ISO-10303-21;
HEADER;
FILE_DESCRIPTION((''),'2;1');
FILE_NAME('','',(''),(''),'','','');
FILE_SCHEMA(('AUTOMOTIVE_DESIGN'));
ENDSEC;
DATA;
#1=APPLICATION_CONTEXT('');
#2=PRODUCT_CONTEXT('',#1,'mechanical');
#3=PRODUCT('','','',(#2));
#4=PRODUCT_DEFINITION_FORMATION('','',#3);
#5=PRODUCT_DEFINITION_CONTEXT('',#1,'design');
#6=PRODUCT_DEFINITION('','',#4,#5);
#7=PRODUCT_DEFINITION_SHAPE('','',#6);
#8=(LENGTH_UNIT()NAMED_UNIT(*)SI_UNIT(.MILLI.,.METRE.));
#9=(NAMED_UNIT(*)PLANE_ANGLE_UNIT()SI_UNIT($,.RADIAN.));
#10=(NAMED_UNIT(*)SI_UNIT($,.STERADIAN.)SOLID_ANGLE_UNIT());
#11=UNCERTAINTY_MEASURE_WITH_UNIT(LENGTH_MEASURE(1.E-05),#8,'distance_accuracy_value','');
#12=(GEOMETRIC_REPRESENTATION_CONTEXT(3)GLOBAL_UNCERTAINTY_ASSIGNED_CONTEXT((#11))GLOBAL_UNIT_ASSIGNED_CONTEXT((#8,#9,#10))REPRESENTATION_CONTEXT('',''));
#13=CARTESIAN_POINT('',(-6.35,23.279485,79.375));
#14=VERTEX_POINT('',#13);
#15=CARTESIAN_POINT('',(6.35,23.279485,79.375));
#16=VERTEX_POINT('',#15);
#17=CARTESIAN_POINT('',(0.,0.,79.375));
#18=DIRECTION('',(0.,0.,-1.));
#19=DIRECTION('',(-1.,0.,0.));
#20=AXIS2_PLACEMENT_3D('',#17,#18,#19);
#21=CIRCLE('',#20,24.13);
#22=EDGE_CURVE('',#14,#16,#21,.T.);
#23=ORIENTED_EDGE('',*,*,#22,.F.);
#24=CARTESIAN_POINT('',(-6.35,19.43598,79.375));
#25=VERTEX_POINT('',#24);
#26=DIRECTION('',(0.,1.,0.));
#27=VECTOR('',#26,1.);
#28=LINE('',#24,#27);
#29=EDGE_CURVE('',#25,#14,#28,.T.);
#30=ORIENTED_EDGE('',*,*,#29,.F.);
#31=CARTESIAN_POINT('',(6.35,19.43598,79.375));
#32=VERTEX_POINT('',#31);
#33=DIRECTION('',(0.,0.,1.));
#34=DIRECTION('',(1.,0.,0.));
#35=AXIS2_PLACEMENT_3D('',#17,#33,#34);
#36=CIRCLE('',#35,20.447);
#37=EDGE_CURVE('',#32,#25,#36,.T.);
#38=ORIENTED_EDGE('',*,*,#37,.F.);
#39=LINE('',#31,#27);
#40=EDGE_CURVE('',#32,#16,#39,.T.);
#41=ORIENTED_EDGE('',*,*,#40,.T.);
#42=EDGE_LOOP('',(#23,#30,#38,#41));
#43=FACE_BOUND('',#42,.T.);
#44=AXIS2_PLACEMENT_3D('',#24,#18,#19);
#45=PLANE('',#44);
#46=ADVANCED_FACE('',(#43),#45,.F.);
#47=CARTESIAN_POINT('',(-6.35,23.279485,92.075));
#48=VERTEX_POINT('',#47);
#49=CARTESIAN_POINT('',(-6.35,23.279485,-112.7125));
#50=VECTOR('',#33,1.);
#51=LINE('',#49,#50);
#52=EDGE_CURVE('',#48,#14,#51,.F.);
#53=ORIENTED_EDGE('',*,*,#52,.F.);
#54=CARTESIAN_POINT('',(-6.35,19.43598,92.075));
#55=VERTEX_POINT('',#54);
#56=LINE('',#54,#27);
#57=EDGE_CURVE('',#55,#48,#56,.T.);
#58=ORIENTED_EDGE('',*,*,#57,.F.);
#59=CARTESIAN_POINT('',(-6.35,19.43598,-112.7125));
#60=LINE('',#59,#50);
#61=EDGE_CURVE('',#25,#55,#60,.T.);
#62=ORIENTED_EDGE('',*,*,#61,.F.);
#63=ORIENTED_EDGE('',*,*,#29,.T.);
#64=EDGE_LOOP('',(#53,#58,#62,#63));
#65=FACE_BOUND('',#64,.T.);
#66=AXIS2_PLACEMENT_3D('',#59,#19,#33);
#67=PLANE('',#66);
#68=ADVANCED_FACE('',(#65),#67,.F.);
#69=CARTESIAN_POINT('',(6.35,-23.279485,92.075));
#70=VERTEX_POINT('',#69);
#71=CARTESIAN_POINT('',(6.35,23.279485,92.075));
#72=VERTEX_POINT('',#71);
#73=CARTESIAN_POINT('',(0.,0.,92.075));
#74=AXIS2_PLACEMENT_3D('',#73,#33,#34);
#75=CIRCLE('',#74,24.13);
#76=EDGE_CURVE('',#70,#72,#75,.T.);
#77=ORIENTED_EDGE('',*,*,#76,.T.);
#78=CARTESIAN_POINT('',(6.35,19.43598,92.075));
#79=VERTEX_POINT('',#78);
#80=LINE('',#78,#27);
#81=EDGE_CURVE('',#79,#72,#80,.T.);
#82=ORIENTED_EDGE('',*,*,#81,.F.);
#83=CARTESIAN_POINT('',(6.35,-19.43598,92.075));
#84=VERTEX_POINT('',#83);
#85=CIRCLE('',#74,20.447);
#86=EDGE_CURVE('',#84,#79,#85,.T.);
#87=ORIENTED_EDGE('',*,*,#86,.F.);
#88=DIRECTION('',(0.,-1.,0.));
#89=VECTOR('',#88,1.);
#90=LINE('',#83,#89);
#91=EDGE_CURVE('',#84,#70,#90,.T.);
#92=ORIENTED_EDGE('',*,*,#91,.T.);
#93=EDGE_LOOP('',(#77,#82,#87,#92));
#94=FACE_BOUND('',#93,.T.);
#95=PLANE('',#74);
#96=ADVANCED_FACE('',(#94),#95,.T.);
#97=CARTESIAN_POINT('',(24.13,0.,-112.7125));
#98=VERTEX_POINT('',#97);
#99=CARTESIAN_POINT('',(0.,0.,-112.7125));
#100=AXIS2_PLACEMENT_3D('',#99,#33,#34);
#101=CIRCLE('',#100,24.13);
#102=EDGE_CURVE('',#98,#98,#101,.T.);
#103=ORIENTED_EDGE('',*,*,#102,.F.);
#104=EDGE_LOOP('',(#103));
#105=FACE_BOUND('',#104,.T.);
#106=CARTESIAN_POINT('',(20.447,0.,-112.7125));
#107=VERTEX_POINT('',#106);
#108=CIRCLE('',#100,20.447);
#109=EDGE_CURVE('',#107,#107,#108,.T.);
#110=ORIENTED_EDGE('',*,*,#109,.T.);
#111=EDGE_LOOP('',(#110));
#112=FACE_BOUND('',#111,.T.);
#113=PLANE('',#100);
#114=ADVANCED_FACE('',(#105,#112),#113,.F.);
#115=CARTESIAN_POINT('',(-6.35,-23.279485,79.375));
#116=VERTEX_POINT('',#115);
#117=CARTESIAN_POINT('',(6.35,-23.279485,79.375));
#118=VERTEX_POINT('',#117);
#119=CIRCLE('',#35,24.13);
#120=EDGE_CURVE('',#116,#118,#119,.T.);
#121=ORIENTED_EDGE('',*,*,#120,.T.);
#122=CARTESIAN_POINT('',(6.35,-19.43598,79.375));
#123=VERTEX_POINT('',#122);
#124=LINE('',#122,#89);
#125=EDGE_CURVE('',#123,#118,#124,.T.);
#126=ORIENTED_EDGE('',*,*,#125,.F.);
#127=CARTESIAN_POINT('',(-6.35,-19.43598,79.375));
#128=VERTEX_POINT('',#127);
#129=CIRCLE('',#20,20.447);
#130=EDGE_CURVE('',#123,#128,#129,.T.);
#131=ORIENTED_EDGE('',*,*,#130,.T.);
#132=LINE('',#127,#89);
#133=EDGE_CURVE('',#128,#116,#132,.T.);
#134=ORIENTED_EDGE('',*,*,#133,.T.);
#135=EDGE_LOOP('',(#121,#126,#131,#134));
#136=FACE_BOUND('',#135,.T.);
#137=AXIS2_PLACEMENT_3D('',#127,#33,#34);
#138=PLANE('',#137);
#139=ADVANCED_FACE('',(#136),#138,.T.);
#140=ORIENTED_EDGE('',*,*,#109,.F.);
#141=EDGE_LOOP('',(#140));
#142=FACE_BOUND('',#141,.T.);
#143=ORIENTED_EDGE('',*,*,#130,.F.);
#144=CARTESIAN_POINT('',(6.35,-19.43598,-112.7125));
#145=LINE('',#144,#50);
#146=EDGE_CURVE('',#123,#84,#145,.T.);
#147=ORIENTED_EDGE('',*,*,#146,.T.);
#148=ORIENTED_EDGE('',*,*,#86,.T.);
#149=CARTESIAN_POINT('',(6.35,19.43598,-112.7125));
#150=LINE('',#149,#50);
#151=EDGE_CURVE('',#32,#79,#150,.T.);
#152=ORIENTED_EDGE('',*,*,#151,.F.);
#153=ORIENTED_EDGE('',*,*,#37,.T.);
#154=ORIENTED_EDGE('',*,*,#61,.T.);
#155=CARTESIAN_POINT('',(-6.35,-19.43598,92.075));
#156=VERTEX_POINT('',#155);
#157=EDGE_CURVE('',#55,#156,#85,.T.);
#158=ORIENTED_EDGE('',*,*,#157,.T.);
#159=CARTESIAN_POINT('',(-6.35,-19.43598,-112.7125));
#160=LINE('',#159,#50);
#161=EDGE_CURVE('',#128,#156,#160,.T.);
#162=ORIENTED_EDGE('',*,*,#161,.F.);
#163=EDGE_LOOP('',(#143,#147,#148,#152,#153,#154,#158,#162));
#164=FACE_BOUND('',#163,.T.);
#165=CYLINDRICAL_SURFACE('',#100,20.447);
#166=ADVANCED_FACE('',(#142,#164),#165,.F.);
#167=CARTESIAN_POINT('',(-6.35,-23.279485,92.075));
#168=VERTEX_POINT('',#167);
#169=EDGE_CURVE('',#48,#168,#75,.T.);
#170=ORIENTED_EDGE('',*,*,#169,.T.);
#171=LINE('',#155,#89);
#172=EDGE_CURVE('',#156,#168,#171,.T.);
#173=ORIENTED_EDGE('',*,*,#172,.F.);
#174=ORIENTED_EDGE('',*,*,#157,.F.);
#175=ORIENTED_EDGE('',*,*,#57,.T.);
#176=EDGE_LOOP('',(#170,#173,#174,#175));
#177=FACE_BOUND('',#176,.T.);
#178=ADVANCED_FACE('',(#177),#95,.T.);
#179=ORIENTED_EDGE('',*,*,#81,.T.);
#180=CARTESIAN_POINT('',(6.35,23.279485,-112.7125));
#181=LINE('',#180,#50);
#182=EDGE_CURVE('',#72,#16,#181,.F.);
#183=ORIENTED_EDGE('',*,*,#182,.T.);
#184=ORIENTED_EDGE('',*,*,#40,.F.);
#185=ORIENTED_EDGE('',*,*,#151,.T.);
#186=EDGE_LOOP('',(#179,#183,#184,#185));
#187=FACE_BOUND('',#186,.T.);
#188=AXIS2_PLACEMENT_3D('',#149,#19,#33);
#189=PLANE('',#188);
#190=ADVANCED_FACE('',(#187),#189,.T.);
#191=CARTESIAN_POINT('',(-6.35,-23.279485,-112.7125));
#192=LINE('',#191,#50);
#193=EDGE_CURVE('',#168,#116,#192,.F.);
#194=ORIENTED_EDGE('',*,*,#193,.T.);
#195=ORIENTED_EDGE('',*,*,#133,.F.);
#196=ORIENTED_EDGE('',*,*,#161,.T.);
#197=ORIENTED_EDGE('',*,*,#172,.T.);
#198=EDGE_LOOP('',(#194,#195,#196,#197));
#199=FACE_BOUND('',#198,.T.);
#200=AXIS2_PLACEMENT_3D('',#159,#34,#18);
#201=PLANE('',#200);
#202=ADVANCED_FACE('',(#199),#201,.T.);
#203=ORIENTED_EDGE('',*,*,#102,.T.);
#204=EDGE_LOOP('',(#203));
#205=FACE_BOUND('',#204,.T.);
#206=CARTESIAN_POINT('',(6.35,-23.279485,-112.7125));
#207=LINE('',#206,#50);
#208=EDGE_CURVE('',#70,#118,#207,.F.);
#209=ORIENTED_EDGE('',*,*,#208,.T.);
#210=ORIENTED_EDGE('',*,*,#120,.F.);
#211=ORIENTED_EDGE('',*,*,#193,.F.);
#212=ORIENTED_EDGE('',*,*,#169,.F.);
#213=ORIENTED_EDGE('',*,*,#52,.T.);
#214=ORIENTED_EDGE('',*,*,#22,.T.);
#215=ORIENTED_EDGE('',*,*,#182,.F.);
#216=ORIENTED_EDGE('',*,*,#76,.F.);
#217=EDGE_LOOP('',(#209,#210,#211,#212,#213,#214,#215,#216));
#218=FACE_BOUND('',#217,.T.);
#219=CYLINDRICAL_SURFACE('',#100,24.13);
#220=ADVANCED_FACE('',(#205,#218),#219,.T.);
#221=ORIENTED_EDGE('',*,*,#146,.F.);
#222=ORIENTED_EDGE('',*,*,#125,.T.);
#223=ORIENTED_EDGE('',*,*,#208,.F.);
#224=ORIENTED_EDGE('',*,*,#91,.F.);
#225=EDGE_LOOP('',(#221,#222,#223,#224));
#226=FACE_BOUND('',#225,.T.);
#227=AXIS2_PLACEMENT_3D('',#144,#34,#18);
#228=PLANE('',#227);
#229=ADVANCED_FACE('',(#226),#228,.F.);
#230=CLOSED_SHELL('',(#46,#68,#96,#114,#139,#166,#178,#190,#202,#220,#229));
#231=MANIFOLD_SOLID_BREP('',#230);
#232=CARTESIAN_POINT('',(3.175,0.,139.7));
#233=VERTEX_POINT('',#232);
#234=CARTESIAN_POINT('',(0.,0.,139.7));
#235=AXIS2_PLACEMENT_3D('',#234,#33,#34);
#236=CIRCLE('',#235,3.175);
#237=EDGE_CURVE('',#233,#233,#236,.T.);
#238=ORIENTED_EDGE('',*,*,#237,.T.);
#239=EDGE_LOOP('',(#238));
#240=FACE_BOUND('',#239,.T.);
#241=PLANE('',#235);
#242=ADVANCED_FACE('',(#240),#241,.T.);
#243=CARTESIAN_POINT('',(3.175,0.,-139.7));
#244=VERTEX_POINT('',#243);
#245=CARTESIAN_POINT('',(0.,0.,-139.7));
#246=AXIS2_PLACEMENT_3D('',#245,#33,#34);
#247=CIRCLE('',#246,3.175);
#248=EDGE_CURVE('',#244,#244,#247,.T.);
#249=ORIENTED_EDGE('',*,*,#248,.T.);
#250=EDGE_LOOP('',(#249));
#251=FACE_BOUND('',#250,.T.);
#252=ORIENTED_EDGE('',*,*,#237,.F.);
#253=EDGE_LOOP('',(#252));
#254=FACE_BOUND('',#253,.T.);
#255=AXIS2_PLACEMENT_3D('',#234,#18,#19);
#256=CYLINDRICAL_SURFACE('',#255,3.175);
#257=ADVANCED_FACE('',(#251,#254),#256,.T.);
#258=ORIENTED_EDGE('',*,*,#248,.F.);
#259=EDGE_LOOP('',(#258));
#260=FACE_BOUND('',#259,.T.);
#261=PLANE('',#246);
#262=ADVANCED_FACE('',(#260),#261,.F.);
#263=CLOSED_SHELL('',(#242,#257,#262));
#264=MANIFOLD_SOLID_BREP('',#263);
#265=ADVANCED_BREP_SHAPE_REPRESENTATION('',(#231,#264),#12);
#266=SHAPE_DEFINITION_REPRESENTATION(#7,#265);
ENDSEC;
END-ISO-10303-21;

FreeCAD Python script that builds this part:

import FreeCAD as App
import Part
import Sketcher

V = App.Vector
Q = App.Units.Quantity

doc = App.newDocument("Part")
body = doc.addObject("PartDesign::Body", "Body")

# Sketch on XY plane
sketch1 = body.newObject("Sketcher::SketchObject", "Sketch")
sketch1.AttachmentSupport = (doc.getObject("XY_Plane"), [""])
sketch1.MapMode = "FlatFace"
sketch1.addGeometry(Part.Circle(V(0, 0, 0), V(0, 0, 1), 3.2), False)
sketch1.addConstraint([
    Sketcher.Constraint("Coincident", 0, 3, -1, 1),
    Sketcher.Constraint("Diameter", 0, Q("0.25 in")),
])
pad1 = body.newObject("PartDesign::Pad", "Pad")
pad1.Profile = sketch1
pad1.Length = Q("11 in")
pad1.Midplane = True
body2 = doc.addObject("PartDesign::Body", "Body001")

# Sketch on XY plane
sketch2 = body2.newObject("Sketcher::SketchObject", "Sketch001")
sketch2.AttachmentSupport = (doc.getObject("XY_Plane001"), [""])
sketch2.MapMode = "FlatFace"
sketch2.addGeometry([
    Part.Circle(V(0, 0, 0), V(0, 0, 1), 24),
    Part.Circle(V(0, 0, 0), V(0, 0, 1), 20),
], False)
sketch2.addConstraint([
    Sketcher.Constraint("Coincident", 0, 3, -1, 1),
    Sketcher.Constraint("Coincident", 1, 3, -1, 1),
    Sketcher.Constraint("Diameter", 0, Q("1.9 in")),
    Sketcher.Constraint("Diameter", 1, Q("1.61 in")),
])
pad2 = body2.newObject("PartDesign::Pad", "Pad001")
pad2.Profile = sketch2
pad2.Type = "TwoLengths"
pad2.Length = Q("3.625 in")
pad2.Length2 = Q("4.4375 in")

# Sketch on XZ plane
sketch3 = body2.newObject("Sketcher::SketchObject", "Sketch002")
sketch3.AttachmentSupport = (doc.getObject("XZ_Plane001"), [""])
sketch3.MapMode = "FlatFace"
sketch3.AttachmentOffset = App.Placement(V(0, 0, -19.43598), App.Rotation())
sketch3.addGeometry([
    Part.LineSegment(V(-6, 79, 0), V(-6, 92, 0)),
    Part.LineSegment(V(-6, 92, 0), V(6, 92, 0)),
    Part.LineSegment(V(6, 92, 0), V(6, 79, 0)),
    Part.LineSegment(V(6, 79, 0), V(-6, 79, 0)),
], False)
sketch3.addConstraint([
    Sketcher.Constraint("Coincident", 0, 2, 1, 1),
    Sketcher.Constraint("Coincident", 1, 2, 2, 1),
    Sketcher.Constraint("Coincident", 2, 2, 3, 1),
    Sketcher.Constraint("Coincident", 3, 2, 0, 1),
    Sketcher.Constraint("Vertical", 0),
    Sketcher.Constraint("Horizontal", 1),
    Sketcher.Constraint("Vertical", 2),
    Sketcher.Constraint("Horizontal", 3),
    Sketcher.Constraint("Equal", 3, 0),
    Sketcher.Constraint("DistanceX", 1, 1, 1, 2, Q("0.5 in")),
    Sketcher.Constraint("DistanceX", 0, 2, -1, 1, Q("0.25 in")),
    Sketcher.Constraint("DistanceY", -1, 1, 0, 2, Q("3.625 in")),
])
pocket1 = body2.newObject("PartDesign::Pocket", "Pocket")
pocket1.Profile = sketch3
pocket1.Length = 4.69402
doc.recompute()

mirrored = body2.newObject("PartDesign::Mirrored", "Mirrored")
mirrored.Originals = [pocket1]
mirrored.MirrorPlane = (doc.getObject("XZ_Plane001"), [""])
body2.Tip = mirrored

doc.recompute()
